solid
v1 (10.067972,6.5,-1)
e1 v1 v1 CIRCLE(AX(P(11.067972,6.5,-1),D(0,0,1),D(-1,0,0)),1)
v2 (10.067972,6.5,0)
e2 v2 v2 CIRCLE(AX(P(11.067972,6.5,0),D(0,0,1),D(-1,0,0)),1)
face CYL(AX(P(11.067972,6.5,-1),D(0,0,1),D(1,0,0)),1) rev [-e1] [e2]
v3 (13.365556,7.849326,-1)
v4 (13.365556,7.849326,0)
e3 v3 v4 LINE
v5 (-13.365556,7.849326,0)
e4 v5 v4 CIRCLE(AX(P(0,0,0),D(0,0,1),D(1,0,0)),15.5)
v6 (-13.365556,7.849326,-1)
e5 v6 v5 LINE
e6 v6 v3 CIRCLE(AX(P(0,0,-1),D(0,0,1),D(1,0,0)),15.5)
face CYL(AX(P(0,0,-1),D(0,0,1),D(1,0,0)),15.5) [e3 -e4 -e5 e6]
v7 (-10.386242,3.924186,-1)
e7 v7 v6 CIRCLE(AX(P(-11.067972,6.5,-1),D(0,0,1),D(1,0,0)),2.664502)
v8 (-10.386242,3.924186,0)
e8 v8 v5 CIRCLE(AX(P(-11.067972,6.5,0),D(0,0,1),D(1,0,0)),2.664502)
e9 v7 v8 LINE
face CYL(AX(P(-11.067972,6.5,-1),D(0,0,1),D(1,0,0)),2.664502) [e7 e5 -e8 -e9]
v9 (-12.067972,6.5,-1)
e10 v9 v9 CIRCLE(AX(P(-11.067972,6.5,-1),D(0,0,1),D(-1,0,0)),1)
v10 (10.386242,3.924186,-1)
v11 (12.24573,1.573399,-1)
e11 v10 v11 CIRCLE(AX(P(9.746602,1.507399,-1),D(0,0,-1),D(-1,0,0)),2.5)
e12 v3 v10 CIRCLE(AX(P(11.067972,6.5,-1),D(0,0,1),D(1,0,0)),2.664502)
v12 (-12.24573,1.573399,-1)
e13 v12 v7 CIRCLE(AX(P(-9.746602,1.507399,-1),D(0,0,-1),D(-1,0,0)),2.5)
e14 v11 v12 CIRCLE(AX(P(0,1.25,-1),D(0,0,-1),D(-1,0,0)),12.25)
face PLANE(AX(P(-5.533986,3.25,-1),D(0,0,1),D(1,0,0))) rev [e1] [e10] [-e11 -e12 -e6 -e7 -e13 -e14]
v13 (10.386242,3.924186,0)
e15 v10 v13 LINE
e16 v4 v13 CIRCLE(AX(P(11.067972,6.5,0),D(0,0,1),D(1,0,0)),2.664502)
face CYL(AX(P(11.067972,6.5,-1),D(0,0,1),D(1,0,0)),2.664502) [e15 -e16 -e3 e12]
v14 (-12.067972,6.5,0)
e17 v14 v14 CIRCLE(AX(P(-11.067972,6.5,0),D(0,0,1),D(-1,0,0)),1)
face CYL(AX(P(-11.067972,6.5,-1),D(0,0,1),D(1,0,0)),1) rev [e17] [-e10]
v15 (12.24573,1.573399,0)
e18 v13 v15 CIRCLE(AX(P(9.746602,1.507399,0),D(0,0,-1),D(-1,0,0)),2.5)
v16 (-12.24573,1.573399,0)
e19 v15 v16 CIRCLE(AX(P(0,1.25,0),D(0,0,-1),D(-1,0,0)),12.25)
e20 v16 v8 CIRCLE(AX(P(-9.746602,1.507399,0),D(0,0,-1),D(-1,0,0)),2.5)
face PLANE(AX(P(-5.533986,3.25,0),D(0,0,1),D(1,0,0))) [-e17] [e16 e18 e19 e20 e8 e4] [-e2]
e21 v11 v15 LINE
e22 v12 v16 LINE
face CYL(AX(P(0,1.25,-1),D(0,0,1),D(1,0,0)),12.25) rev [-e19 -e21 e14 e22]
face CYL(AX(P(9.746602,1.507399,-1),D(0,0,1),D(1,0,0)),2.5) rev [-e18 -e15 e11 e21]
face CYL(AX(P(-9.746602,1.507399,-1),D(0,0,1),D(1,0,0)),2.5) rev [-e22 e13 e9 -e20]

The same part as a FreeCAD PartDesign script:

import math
import FreeCAD as App
import Part
import Sketcher
from FreeCAD import Vector
Q = App.Units.Quantity

doc = App.newDocument("Part")
body = doc.addObject("PartDesign::Body", "Body")

sketch1 = body.newObject("Sketcher::SketchObject", "Sketch")
sketch1.AttachmentSupport = (doc.getObject("XY_Plane"), [""])
sketch1.MapMode = "FlatFace"
sketch1.addGeometry(Part.ArcOfCircle(Part.Circle(Vector(0, 0, 0), Vector(0, 0, 1), 15.5), math.radians(150), math.radians(390)), False)
sketch1.addGeometry(Part.ArcOfCircle(Part.Circle(Vector(11.1, 6.5, 0), Vector(0, 0, 1), 2.7), math.radians(30), math.radians(255)), False)
sketch1.addGeometry(Part.ArcOfCircle(Part.Circle(Vector(9.7, 1.5, 0), Vector(0, 0, 1), 2.5), math.radians(2), math.radians(75)), False)
sketch1.addGeometry(Part.ArcOfCircle(Part.Circle(Vector(0, 1.2, 0), Vector(0, 0, 1), 12.2), math.radians(178), math.radians(362)), False)
sketch1.addGeometry(Part.ArcOfCircle(Part.Circle(Vector(-9.7, 1.5, 0), Vector(0, 0, 1), 2.5), math.radians(105), math.radians(178)), False)
sketch1.addGeometry(Part.ArcOfCircle(Part.Circle(Vector(-11.1, 6.5, 0), Vector(0, 0, 1), 2.7), math.radians(-75), math.radians(150)), False)
sketch1.addGeometry(Part.Circle(Vector(-11.1, 6.5, 0), Vector(0, 0, 1), 1), False)
sketch1.addGeometry(Part.Circle(Vector(11.1, 6.5, 0), Vector(0, 0, 1), 1), False)
sketch1.addConstraint(Sketcher.Constraint("Tangent", 0, 2, 1, 1))
sketch1.addConstraint(Sketcher.Constraint("Tangent", 1, 2, 2, 2))
sketch1.addConstraint(Sketcher.Constraint("Tangent", 2, 1, 3, 2))
sketch1.addConstraint(Sketcher.Constraint("Tangent", 3, 1, 4, 2))
sketch1.addConstraint(Sketcher.Constraint("Tangent", 4, 1, 5, 1))
sketch1.addConstraint(Sketcher.Constraint("Tangent", 5, 2, 0, 1))
sketch1.addConstraint(Sketcher.Constraint("Coincident", 0, 3, -1, 1))
sketch1.addConstraint(Sketcher.Constraint("Coincident", 6, 3, 5, 3))
sketch1.addConstraint(Sketcher.Constraint("Coincident", 7, 3, 1, 3))
sketch1.addConstraint(Sketcher.Constraint("Equal", 2, 4))
sketch1.addConstraint(Sketcher.Constraint("Equal", 1, 5))
sketch1.addConstraint(Sketcher.Constraint("Equal", 6, 7))
sketch1.addConstraint(Sketcher.Constraint("Symmetric", 2, 3, 4, 3, -2))
sketch1.addConstraint(Sketcher.Constraint("Diameter", 6, Q("2 mm")))
sketch1.addConstraint(Sketcher.Constraint("Radius", 0, Q("15.5 mm")))
sketch1.addConstraint(Sketcher.Constraint("Radius", 2, Q("2.5 mm")))
sketch1.addConstraint(Sketcher.Constraint("Radius", 3, Q("12.25 mm")))
sketch1.addConstraint(Sketcher.Constraint("DistanceY", -1, 1, 1, 3, Q("6.5 mm")))
sketch1.addConstraint(Sketcher.Constraint("DistanceY", -1, 1, 3, 3, Q("1.25 mm")))
sketch1.addConstraint(Sketcher.Constraint("Radius", 1, Q("2.664502 mm")))
pad1 = body.newObject("PartDesign::Pad", "Pad")
pad1.Profile = sketch1
pad1.Length = 1
pad1.Reversed = True

doc.recompute()
